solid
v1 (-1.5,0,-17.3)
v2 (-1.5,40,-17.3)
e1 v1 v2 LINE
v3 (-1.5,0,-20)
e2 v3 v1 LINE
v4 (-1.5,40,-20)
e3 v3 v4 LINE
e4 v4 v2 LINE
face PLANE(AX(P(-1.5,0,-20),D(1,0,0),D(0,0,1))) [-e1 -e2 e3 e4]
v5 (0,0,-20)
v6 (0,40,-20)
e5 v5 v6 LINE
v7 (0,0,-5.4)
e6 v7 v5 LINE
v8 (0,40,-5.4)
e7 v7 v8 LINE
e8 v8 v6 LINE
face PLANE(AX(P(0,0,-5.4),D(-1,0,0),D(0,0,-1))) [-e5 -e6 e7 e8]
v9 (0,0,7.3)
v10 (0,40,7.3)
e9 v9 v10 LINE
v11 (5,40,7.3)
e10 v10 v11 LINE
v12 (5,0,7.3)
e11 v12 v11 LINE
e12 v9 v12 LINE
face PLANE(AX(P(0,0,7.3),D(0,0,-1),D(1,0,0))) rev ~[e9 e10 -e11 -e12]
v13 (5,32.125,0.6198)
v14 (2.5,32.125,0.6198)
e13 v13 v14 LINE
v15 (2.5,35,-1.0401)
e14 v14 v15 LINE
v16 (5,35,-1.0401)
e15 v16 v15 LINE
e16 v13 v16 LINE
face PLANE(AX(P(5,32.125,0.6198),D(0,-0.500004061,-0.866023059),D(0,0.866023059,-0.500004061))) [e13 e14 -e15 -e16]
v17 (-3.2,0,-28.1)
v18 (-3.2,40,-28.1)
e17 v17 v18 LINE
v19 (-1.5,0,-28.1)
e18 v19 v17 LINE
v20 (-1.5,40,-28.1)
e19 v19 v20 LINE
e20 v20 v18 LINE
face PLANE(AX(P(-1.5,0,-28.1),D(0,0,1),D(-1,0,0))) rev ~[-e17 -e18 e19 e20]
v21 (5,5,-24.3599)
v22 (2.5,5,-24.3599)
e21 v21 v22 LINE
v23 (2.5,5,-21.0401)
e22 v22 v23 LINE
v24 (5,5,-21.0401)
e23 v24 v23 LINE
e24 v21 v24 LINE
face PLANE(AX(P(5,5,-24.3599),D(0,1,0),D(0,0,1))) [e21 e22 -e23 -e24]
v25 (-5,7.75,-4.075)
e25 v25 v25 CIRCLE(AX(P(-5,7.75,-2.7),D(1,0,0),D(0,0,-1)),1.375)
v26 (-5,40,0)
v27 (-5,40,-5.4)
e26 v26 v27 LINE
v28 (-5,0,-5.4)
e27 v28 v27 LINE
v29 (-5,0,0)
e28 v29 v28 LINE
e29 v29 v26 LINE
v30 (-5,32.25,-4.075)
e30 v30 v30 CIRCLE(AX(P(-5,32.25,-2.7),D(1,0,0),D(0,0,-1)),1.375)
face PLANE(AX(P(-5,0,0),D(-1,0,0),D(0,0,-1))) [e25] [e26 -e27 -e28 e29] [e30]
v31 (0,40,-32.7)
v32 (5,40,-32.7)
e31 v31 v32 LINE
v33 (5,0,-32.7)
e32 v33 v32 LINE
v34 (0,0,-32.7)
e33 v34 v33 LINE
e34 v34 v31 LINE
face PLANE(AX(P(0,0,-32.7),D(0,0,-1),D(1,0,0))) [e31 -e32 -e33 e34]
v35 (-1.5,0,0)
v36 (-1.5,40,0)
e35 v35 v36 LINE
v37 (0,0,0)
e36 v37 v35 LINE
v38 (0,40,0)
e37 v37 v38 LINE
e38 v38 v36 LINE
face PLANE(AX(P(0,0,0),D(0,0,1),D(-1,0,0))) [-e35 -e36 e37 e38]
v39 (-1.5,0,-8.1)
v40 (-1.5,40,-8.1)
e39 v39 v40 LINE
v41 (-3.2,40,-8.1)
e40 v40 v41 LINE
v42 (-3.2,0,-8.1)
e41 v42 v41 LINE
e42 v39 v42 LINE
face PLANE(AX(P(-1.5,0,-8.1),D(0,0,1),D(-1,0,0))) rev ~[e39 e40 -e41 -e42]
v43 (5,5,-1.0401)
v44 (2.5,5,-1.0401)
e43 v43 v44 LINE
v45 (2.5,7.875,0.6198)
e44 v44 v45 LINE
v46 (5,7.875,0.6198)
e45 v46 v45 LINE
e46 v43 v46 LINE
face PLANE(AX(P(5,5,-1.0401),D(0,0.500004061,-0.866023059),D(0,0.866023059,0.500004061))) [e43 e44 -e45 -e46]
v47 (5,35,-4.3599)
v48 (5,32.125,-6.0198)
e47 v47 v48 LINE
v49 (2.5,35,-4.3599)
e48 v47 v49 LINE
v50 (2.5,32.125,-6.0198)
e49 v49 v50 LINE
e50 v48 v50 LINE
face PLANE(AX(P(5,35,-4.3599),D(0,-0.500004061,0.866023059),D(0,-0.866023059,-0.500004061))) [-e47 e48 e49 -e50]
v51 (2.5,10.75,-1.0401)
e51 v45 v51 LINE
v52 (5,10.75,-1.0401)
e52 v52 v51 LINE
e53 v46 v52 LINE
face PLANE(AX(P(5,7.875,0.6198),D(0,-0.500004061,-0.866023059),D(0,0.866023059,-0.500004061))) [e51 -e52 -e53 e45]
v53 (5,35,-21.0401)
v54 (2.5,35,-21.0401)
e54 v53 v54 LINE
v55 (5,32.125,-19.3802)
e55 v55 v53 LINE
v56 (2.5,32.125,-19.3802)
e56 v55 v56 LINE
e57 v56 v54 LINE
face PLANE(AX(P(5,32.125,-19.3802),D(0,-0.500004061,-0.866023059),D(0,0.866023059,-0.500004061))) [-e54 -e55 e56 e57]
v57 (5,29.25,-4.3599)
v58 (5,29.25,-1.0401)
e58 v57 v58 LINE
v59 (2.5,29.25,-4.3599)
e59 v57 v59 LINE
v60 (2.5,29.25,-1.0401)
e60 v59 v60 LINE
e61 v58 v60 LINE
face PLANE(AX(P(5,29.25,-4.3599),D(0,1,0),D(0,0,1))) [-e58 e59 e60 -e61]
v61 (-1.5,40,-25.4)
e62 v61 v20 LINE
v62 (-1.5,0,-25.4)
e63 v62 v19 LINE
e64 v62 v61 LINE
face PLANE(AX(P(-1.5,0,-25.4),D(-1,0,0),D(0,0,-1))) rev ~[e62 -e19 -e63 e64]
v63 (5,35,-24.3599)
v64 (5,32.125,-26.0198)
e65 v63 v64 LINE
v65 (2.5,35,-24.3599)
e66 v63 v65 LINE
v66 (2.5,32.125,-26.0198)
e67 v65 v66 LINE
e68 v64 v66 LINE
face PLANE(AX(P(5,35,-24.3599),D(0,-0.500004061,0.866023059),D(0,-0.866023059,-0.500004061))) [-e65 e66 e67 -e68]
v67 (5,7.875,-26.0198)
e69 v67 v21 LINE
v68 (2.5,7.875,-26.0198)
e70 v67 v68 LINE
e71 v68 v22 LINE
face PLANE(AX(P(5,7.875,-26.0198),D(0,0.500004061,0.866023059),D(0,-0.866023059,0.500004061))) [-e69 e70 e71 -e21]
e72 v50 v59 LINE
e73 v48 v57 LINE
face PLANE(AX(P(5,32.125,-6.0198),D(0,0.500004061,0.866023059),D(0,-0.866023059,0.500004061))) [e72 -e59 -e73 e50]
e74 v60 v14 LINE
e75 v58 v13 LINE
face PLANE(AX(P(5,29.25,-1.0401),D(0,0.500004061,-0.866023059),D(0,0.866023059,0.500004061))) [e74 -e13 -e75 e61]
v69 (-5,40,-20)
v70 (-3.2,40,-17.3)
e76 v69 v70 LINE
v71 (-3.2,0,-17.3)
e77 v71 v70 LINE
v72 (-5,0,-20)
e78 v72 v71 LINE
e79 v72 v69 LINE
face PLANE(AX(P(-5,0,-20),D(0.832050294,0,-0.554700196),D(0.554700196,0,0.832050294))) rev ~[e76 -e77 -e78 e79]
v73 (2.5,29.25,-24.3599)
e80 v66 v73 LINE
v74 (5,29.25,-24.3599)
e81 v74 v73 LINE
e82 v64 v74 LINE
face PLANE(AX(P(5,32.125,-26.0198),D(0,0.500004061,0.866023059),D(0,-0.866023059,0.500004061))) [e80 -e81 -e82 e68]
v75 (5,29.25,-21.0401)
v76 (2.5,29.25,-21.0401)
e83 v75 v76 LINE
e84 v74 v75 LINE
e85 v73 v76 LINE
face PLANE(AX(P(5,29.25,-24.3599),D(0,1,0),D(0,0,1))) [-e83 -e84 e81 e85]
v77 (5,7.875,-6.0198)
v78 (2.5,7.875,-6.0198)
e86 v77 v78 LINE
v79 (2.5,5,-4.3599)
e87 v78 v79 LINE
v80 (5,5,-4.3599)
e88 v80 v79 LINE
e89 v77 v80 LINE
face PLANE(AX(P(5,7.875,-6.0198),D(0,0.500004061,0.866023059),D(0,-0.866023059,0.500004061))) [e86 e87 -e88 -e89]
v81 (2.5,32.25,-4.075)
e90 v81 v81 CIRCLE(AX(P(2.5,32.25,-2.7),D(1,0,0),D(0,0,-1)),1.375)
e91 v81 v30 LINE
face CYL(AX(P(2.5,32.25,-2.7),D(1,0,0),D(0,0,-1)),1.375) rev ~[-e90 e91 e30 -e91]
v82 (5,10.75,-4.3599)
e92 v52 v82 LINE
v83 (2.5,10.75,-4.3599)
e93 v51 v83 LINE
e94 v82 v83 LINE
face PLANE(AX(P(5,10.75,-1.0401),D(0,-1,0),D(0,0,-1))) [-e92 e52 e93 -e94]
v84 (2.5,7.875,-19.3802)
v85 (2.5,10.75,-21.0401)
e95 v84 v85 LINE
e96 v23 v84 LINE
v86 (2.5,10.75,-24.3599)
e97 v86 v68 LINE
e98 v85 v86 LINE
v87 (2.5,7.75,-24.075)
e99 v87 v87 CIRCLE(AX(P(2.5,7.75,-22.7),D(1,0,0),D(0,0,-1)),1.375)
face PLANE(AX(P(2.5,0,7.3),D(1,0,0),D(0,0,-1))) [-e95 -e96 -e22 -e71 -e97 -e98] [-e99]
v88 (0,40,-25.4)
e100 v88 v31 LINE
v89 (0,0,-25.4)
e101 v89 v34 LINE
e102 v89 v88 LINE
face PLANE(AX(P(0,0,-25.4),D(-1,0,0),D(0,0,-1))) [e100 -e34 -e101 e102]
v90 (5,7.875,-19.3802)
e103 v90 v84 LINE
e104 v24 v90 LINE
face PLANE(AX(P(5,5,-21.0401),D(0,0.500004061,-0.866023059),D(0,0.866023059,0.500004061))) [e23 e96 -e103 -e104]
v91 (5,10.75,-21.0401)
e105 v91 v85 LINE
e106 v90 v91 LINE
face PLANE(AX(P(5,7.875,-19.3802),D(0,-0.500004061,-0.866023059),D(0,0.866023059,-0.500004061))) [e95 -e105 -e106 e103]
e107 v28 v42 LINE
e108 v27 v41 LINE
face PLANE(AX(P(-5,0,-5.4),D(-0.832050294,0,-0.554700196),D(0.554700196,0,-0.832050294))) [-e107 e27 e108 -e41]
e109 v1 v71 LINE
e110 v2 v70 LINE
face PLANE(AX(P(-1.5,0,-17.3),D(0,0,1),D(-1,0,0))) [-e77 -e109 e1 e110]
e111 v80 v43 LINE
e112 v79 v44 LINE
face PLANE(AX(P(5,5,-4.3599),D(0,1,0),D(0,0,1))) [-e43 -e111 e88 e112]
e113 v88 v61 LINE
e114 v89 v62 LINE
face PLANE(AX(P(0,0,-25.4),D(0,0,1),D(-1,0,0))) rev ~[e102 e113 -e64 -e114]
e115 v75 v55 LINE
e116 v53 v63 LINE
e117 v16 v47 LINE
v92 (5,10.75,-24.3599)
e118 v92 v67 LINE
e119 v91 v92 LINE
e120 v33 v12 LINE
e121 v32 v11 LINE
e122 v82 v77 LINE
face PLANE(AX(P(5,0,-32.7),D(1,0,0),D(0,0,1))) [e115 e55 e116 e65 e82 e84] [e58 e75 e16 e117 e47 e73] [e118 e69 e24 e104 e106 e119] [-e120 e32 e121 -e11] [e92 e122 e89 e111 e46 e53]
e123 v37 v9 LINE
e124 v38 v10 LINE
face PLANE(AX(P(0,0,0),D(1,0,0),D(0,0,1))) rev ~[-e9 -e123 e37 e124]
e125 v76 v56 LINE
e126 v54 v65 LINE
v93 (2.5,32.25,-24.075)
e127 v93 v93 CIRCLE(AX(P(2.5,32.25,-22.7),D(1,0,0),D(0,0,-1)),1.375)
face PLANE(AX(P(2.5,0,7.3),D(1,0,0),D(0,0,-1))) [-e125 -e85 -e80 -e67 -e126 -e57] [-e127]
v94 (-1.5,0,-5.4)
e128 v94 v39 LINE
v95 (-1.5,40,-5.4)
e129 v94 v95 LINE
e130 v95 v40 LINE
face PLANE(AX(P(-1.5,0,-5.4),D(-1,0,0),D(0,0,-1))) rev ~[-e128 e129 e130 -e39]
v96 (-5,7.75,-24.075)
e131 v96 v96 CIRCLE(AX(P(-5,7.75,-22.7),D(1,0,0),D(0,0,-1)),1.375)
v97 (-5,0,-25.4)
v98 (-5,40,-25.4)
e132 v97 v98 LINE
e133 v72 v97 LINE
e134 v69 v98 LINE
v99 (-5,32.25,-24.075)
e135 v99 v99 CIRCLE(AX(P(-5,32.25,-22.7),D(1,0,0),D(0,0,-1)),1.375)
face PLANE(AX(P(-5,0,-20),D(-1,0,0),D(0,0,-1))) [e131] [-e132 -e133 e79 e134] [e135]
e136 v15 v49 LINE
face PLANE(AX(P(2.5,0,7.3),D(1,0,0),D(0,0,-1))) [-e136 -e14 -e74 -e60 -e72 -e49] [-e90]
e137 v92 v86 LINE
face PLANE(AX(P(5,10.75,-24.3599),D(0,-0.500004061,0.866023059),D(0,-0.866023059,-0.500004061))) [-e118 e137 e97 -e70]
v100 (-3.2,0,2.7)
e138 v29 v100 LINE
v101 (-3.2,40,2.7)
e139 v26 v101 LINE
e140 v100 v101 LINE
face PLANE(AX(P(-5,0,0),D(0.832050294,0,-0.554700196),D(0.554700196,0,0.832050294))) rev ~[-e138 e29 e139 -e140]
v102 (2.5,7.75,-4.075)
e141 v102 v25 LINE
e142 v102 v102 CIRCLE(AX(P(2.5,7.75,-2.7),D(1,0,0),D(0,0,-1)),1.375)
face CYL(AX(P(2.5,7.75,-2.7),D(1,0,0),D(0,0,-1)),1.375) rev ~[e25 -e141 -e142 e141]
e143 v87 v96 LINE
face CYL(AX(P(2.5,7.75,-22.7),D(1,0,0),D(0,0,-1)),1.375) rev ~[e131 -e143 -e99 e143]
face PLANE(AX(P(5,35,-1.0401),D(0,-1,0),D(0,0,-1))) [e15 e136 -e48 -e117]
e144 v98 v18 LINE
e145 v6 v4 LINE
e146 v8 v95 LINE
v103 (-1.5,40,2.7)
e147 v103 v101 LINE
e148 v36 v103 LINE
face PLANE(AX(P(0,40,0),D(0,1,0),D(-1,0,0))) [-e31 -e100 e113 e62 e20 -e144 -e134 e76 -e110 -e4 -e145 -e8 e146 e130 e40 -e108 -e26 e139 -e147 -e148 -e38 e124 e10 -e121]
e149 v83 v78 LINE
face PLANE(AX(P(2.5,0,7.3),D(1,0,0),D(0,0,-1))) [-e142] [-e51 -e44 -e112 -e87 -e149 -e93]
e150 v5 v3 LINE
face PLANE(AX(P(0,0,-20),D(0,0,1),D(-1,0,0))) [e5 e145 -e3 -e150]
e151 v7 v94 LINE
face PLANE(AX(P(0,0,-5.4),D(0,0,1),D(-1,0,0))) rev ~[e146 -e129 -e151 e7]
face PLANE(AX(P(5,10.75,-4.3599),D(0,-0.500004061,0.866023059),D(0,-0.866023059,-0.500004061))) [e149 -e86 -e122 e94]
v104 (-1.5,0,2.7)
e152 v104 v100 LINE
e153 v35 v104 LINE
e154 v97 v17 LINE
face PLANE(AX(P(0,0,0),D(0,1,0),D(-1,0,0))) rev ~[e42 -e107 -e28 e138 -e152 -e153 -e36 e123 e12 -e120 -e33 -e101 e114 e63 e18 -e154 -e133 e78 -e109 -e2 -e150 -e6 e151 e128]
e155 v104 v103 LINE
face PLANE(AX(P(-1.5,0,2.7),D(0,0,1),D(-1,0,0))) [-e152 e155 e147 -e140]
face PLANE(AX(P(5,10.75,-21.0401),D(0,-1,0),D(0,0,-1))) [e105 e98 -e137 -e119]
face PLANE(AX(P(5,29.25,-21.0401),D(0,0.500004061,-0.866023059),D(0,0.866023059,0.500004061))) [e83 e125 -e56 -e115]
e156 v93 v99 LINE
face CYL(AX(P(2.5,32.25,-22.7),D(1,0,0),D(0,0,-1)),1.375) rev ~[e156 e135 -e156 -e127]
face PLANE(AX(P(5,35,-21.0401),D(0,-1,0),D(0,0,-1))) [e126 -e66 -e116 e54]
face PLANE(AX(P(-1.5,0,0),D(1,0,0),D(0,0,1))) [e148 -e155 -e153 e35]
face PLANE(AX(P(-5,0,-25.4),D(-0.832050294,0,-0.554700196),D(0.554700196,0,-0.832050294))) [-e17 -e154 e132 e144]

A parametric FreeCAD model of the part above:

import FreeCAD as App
import Part
import Sketcher
Q = App.Units.Quantity


def add_polygon(sketch, points):
    """Adds a closed chain of lines whose ends are joined by coincident constraints."""
    first, n = sketch.GeometryCount, len(points)
    for a, b in zip(points, points[1:] + points[:1]):
        sketch.addGeometry(Part.LineSegment(App.Vector(*a, 0), App.Vector(*b, 0)), False)
    for i in range(n):
        sketch.addConstraint(Sketcher.Constraint("Coincident", first + i, 2, first + (i + 1) % n, 1))

doc = App.newDocument("Part")
body = doc.addObject("PartDesign::Body", "Body")

sketch1 = body.newObject("Sketcher::SketchObject", "Sketch")
sketch1.AttachmentSupport = (doc.getObject("XZ_Plane"), [""])
sketch1.MapMode = "FlatFace"
add_polygon(sketch1, [(0, -20), (0, -5.4), (-1.5, -5.4), (-1.5, -8.1), (-3.2, -8.1), (-5, -5.4), (-5, 0), (-3.2, 2.7), (-1.5, 2.7), (-1.5, 0), (0, 0), (0, 7.3), (5, 7.3), (5, -32.7), (0, -32.7), (0, -25.4), (-1.5, -25.4), (-1.5, -28.1), (-3.2, -28.1), (-5, -25.4), (-5, -20), (-3.2, -17.3), (-1.5, -17.3), (-1.5, -20)])
sketch1.addConstraint(Sketcher.Constraint("Vertical", 0))
sketch1.addConstraint(Sketcher.Constraint("Horizontal", 1))
sketch1.addConstraint(Sketcher.Constraint("Vertical", 2))
sketch1.addConstraint(Sketcher.Constraint("Horizontal", 3))
sketch1.addConstraint(Sketcher.Constraint("Vertical", 5))
sketch1.addConstraint(Sketcher.Constraint("Horizontal", 7))
sketch1.addConstraint(Sketcher.Constraint("Vertical", 8))
sketch1.addConstraint(Sketcher.Constraint("Horizontal", 9))
sketch1.addConstraint(Sketcher.Constraint("Vertical", 10))
sketch1.addConstraint(Sketcher.Constraint("Horizontal", 11))
sketch1.addConstraint(Sketcher.Constraint("Vertical", 12))
sketch1.addConstraint(Sketcher.Constraint("Horizontal", 13))
sketch1.addConstraint(Sketcher.Constraint("Vertical", 14))
sketch1.addConstraint(Sketcher.Constraint("Horizontal", 15))
sketch1.addConstraint(Sketcher.Constraint("Vertical", 16))
sketch1.addConstraint(Sketcher.Constraint("Horizontal", 17))
sketch1.addConstraint(Sketcher.Constraint("Vertical", 19))
sketch1.addConstraint(Sketcher.Constraint("Horizontal", 21))
sketch1.addConstraint(Sketcher.Constraint("Vertical", 22))
sketch1.addConstraint(Sketcher.Constraint("Horizontal", 23))
sketch1.addConstraint(Sketcher.Constraint("Coincident", 9, 2, -1, 1))
sketch1.addConstraint(Sketcher.Constraint("PointOnObject", 0, 2, -2))
sketch1.addConstraint(Sketcher.Constraint("PointOnObject", 5, 2, -1))
sketch1.addConstraint(Sketcher.Constraint("PointOnObject", 13, 2, -2))
sketch1.addConstraint(Sketcher.Constraint("Parallel", 4, 18))
sketch1.addConstraint(Sketcher.Constraint("Parallel", 6, 20))
sketch1.addConstraint(Sketcher.Constraint("Horizontal", 1, 2, 4, 2))
sketch1.addConstraint(Sketcher.Constraint("Horizontal", 15, 2, 18, 2))
sketch1.addConstraint(Sketcher.Constraint("Horizontal", 19, 2, 22, 2))
sketch1.addConstraint(Sketcher.Constraint("Vertical", 3, 2, 6, 2))
sketch1.addConstraint(Sketcher.Constraint("Vertical", 2, 2, 7, 2))
sketch1.addConstraint(Sketcher.Constraint("Vertical", 8, 2, 15, 2))
sketch1.addConstraint(Sketcher.Constraint("Vertical", 6, 2, 17, 2))
sketch1.addConstraint(Sketcher.Constraint("Vertical", 5, 2, 18, 2))
sketch1.addConstraint(Sketcher.Constraint("Vertical", 17, 2, 20, 2))
sketch1.addConstraint(Sketcher.Constraint("Vertical", 16, 2, 21, 2))
sketch1.addConstraint(Sketcher.Constraint("Equal", 2, 8))
sketch1.addConstraint(Sketcher.Constraint("Equal", 10, 14))
sketch1.addConstraint(Sketcher.Constraint("Equal", 5, 19))
sketch1.addConstraint(Sketcher.Constraint("DistanceX", 11, 1, 11, 2, Q("5 mm")))
sketch1.addConstraint(Sketcher.Constraint("DistanceX", 1, 2, 1, 1, Q("1.5 mm")))
sketch1.addConstraint(Sketcher.Constraint("DistanceX", 3, 2, 3, 1, Q("1.7 mm")))
sketch1.addConstraint(Sketcher.Constraint("DistanceY", 2, 2, 2, 1, Q("2.7 mm")))
sketch1.addConstraint(Sketcher.Constraint("DistanceY", 5, 1, 5, 2, Q("5.4 mm")))
sketch1.addConstraint(Sketcher.Constraint("DistanceY", 10, 1, 10, 2, Q("7.3 mm")))
sketch1.addConstraint(Sketcher.Constraint("DistanceX", 4, 2, -1, 1, Q("5 mm")))
sketch1.addConstraint(Sketcher.Constraint("DistanceY", 19, 2, -1, 1, Q("20 mm")))
pad1 = body.newObject("PartDesign::Pad", "Pad")
pad1.Profile = sketch1
pad1.Length = 40
pad1.Reversed = True

sketch2 = body.newObject("Sketcher::SketchObject", "Sketch001")
sketch2.AttachmentSupport = (doc.getObject("YZ_Plane"), [""])
sketch2.MapMode = "FlatFace"
sketch2.AttachmentOffset = App.Placement(App.Vector(0, 0, 5), App.Rotation())
add_polygon(sketch2, [(5, -1.0401), (5, -4.3599), (7.875, -6.0198), (10.75, -4.3599), (10.75, -1.0401), (7.875, 0.6198)])
add_polygon(sketch2, [(5, -21.0401), (5, -24.3599), (7.875, -26.0198), (10.75, -24.3599), (10.75, -21.0401), (7.875, -19.3802)])
add_polygon(sketch2, [(29.25, -1.0401), (29.25, -4.3599), (32.125, -6.0198), (35, -4.3599), (35, -1.0401), (32.125, 0.6198)])
add_polygon(sketch2, [(29.25, -21.0401), (29.25, -24.3599), (32.125, -26.0198), (35, -24.3599), (35, -21.0401), (32.125, -19.3802)])
sketch2.addConstraint(Sketcher.Constraint("Vertical", 0))
sketch2.addConstraint(Sketcher.Constraint("Vertical", 3))
sketch2.addConstraint(Sketcher.Constraint("Vertical", 6))
sketch2.addConstraint(Sketcher.Constraint("Vertical", 9))
sketch2.addConstraint(Sketcher.Constraint("Vertical", 12))
sketch2.addConstraint(Sketcher.Constraint("Vertical", 15))
sketch2.addConstraint(Sketcher.Constraint("Vertical", 18))
sketch2.addConstraint(Sketcher.Constraint("Vertical", 21))
sketch2.addConstraint(Sketcher.Constraint("Parallel", 1, 4))
sketch2.addConstraint(Sketcher.Constraint("Parallel", 2, 5))
sketch2.addConstraint(Sketcher.Constraint("Parallel", 4, 7))
sketch2.addConstraint(Sketcher.Constraint("Parallel", 5, 8))
sketch2.addConstraint(Sketcher.Constraint("Parallel", 7, 10))
sketch2.addConstraint(Sketcher.Constraint("Parallel", 8, 11))
sketch2.addConstraint(Sketcher.Constraint("Parallel", 10, 13))
sketch2.addConstraint(Sketcher.Constraint("Parallel", 11, 14))
sketch2.addConstraint(Sketcher.Constraint("Parallel", 13, 16))
sketch2.addConstraint(Sketcher.Constraint("Parallel", 14, 17))
sketch2.addConstraint(Sketcher.Constraint("Parallel", 16, 19))
sketch2.addConstraint(Sketcher.Constraint("Parallel", 17, 20))
sketch2.addConstraint(Sketcher.Constraint("Parallel", 19, 22))
sketch2.addConstraint(Sketcher.Constraint("Parallel", 20, 23))
sketch2.addConstraint(Sketcher.Constraint("Horizontal", 0, 2, 2, 2))
sketch2.addConstraint(Sketcher.Constraint("Horizontal", 3, 2, 5, 2))
sketch2.addConstraint(Sketcher.Constraint("Horizontal", 6, 2, 8, 2))
sketch2.addConstraint(Sketcher.Constraint("Horizontal", 9, 2, 11, 2))
sketch2.addConstraint(Sketcher.Constraint("Horizontal", 2, 2, 12, 2))
sketch2.addConstraint(Sketcher.Constraint("Horizontal", 1, 2, 13, 2))
sketch2.addConstraint(Sketcher.Constraint("Horizontal", 12, 2, 14, 2))
sketch2.addConstraint(Sketcher.Constraint("Horizontal", 5, 2, 15, 2))
sketch2.addConstraint(Sketcher.Constraint("Horizontal", 4, 2, 16, 2))
sketch2.addConstraint(Sketcher.Constraint("Horizontal", 8, 2, 18, 2))
sketch2.addConstraint(Sketcher.Constraint("Horizontal", 7, 2, 19, 2))
sketch2.addConstraint(Sketcher.Constraint("Horizontal", 18, 2, 20, 2))
sketch2.addConstraint(Sketcher.Constraint("Horizontal", 11, 2, 21, 2))
sketch2.addConstraint(Sketcher.Constraint("Horizontal", 10, 2, 22, 2))
sketch2.addConstraint(Sketcher.Constraint("Vertical", 1, 2, 4, 2))
sketch2.addConstraint(Sketcher.Constraint("Vertical", 5, 2, 6, 2))
sketch2.addConstraint(Sketcher.Constraint("Vertical", 4, 2, 7, 2))
sketch2.addConstraint(Sketcher.Constraint("Vertical", 17, 2, 18, 2))
sketch2.addConstraint(Sketcher.Constraint("Equal", 3, 6))
sketch2.addConstraint(Sketcher.Constraint("DistanceX", -1, 1, 0, 2, Q("5 mm")))
sketch2.addConstraint(Sketcher.Constraint("Angle", 1, Q("-30.0003 deg")))
sketch2.addConstraint(Sketcher.Constraint("DistanceX", 0, 2, 2, 2, Q("5.75 mm")))
sketch2.addConstraint(Sketcher.Constraint("DistanceX", -1, 1, 14, 2, Q("35 mm")))
sketch2.addConstraint(Sketcher.Constraint("DistanceY", 6, 2, 0, 2, Q("20 mm")))
sketch2.addConstraint(Sketcher.Constraint("DistanceY", 0, 2, -1, 1, Q("4.36 mm")))
sketch2.addConstraint(Sketcher.Constraint("DistanceY", 3, 2, -1, 1, Q("1.04 mm")))
pocket1 = body.newObject("PartDesign::Pocket", "Pocket")
pocket1.Profile = sketch2
pocket1.Length = 2.5

sketch3 = body.newObject("Sketcher::SketchObject", "Sketch002")
sketch3.AttachmentSupport = (doc.getObject("YZ_Plane"), [""])
sketch3.MapMode = "FlatFace"
sketch3.AttachmentOffset = App.Placement(App.Vector(0, 0, 2.5), App.Rotation())
sketch3.addGeometry(Part.Circle(App.Vector(7.75, -22.7, 0), App.Vector(0, 0, 1), 1.375), False)
sketch3.addGeometry(Part.Circle(App.Vector(7.75, -2.7, 0), App.Vector(0, 0, 1), 1.375), False)
sketch3.addGeometry(Part.Circle(App.Vector(32.25, -2.7, 0), App.Vector(0, 0, 1), 1.375), False)
sketch3.addGeometry(Part.Circle(App.Vector(32.25, -22.7, 0), App.Vector(0, 0, 1), 1.375), False)
sketch3.addConstraint(Sketcher.Constraint("Equal", 0, 1))
sketch3.addConstraint(Sketcher.Constraint("Equal", 1, 2))
sketch3.addConstraint(Sketcher.Constraint("Equal", 2, 3))
sketch3.addConstraint(Sketcher.Constraint("Horizontal", 1, 3, 2, 3))
sketch3.addConstraint(Sketcher.Constraint("Horizontal", 0, 3, 3, 3))
sketch3.addConstraint(Sketcher.Constraint("Vertical", 0, 3, 1, 3))
sketch3.addConstraint(Sketcher.Constraint("Vertical", 2, 3, 3, 3))
sketch3.addConstraint(Sketcher.Constraint("Diameter", 0, Q("2.75 mm")))
sketch3.addConstraint(Sketcher.Constraint("DistanceY", 0, 3, 1, 3, Q("20 mm")))
sketch3.addConstraint(Sketcher.Constraint("DistanceY", 0, 3, -1, 1, Q("22.7 mm")))
sketch3.addConstraint(Sketcher.Constraint("DistanceX", 1, 3, 2, 3, Q("24.5 mm")))
sketch3.addConstraint(Sketcher.Constraint("DistanceX", -1, 1, 0, 3, Q("7.75 mm")))
pocket2 = body.newObject("PartDesign::Pocket", "Pocket001")
pocket2.Profile = sketch3
pocket2.Length = 20

doc.recompute()
